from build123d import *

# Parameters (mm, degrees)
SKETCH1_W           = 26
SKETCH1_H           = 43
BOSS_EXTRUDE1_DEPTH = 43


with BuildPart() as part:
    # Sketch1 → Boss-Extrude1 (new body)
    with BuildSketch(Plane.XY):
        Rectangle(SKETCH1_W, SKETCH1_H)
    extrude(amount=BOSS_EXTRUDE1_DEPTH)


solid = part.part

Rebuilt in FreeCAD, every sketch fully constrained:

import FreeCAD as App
import Part
import Sketcher
from FreeCAD import Vector
Q = App.Units.Quantity


def add_polygon(sketch, points):
    """Adds a closed chain of lines whose ends are joined by coincident constraints."""
    first, n = sketch.GeometryCount, len(points)
    for a, b in zip(points, points[1:] + points[:1]):
        sketch.addGeometry(Part.LineSegment(App.Vector(*a, 0), App.Vector(*b, 0)), False)
    for i in range(n):
        sketch.addConstraint(Sketcher.Constraint("Coincident", first + i, 2, first + (i + 1) % n, 1))

doc = App.newDocument("Part")
body = doc.addObject("PartDesign::Body", "Body")

# Sketch on XY plane
sketch1 = doc.addObject("Sketcher::SketchObject", "Sketch")
body.addObject(sketch1)
sketch1.AttachmentSupport = (doc.XY_Plane, [""])
sketch1.MapMode = "FlatFace"
add_polygon(sketch1, [(-13, 22), (-13, -22), (13, -22), (13, 22)])  # lines 0-3
sketch1.addConstraint(Sketcher.Constraint("Vertical", 0))
sketch1.addConstraint(Sketcher.Constraint("Horizontal", 1))
sketch1.addConstraint(Sketcher.Constraint("Vertical", 2))
sketch1.addConstraint(Sketcher.Constraint("Horizontal", 3))
sketch1.addConstraint(Sketcher.Constraint("Symmetric", 0, 2, 2, 2, -1, 1))
sketch1.addConstraint(Sketcher.Constraint("DistanceX", 1, 1, 1, 2, Q("26 mm")))
sketch1.addConstraint(Sketcher.Constraint("DistanceY", 0, 2, 0, 1, Q("43 mm")))
pad1 = doc.addObject("PartDesign::Pad", "Pad")
body.addObject(pad1)
pad1.Profile = sketch1
pad1.Length = 43

doc.recompute()
